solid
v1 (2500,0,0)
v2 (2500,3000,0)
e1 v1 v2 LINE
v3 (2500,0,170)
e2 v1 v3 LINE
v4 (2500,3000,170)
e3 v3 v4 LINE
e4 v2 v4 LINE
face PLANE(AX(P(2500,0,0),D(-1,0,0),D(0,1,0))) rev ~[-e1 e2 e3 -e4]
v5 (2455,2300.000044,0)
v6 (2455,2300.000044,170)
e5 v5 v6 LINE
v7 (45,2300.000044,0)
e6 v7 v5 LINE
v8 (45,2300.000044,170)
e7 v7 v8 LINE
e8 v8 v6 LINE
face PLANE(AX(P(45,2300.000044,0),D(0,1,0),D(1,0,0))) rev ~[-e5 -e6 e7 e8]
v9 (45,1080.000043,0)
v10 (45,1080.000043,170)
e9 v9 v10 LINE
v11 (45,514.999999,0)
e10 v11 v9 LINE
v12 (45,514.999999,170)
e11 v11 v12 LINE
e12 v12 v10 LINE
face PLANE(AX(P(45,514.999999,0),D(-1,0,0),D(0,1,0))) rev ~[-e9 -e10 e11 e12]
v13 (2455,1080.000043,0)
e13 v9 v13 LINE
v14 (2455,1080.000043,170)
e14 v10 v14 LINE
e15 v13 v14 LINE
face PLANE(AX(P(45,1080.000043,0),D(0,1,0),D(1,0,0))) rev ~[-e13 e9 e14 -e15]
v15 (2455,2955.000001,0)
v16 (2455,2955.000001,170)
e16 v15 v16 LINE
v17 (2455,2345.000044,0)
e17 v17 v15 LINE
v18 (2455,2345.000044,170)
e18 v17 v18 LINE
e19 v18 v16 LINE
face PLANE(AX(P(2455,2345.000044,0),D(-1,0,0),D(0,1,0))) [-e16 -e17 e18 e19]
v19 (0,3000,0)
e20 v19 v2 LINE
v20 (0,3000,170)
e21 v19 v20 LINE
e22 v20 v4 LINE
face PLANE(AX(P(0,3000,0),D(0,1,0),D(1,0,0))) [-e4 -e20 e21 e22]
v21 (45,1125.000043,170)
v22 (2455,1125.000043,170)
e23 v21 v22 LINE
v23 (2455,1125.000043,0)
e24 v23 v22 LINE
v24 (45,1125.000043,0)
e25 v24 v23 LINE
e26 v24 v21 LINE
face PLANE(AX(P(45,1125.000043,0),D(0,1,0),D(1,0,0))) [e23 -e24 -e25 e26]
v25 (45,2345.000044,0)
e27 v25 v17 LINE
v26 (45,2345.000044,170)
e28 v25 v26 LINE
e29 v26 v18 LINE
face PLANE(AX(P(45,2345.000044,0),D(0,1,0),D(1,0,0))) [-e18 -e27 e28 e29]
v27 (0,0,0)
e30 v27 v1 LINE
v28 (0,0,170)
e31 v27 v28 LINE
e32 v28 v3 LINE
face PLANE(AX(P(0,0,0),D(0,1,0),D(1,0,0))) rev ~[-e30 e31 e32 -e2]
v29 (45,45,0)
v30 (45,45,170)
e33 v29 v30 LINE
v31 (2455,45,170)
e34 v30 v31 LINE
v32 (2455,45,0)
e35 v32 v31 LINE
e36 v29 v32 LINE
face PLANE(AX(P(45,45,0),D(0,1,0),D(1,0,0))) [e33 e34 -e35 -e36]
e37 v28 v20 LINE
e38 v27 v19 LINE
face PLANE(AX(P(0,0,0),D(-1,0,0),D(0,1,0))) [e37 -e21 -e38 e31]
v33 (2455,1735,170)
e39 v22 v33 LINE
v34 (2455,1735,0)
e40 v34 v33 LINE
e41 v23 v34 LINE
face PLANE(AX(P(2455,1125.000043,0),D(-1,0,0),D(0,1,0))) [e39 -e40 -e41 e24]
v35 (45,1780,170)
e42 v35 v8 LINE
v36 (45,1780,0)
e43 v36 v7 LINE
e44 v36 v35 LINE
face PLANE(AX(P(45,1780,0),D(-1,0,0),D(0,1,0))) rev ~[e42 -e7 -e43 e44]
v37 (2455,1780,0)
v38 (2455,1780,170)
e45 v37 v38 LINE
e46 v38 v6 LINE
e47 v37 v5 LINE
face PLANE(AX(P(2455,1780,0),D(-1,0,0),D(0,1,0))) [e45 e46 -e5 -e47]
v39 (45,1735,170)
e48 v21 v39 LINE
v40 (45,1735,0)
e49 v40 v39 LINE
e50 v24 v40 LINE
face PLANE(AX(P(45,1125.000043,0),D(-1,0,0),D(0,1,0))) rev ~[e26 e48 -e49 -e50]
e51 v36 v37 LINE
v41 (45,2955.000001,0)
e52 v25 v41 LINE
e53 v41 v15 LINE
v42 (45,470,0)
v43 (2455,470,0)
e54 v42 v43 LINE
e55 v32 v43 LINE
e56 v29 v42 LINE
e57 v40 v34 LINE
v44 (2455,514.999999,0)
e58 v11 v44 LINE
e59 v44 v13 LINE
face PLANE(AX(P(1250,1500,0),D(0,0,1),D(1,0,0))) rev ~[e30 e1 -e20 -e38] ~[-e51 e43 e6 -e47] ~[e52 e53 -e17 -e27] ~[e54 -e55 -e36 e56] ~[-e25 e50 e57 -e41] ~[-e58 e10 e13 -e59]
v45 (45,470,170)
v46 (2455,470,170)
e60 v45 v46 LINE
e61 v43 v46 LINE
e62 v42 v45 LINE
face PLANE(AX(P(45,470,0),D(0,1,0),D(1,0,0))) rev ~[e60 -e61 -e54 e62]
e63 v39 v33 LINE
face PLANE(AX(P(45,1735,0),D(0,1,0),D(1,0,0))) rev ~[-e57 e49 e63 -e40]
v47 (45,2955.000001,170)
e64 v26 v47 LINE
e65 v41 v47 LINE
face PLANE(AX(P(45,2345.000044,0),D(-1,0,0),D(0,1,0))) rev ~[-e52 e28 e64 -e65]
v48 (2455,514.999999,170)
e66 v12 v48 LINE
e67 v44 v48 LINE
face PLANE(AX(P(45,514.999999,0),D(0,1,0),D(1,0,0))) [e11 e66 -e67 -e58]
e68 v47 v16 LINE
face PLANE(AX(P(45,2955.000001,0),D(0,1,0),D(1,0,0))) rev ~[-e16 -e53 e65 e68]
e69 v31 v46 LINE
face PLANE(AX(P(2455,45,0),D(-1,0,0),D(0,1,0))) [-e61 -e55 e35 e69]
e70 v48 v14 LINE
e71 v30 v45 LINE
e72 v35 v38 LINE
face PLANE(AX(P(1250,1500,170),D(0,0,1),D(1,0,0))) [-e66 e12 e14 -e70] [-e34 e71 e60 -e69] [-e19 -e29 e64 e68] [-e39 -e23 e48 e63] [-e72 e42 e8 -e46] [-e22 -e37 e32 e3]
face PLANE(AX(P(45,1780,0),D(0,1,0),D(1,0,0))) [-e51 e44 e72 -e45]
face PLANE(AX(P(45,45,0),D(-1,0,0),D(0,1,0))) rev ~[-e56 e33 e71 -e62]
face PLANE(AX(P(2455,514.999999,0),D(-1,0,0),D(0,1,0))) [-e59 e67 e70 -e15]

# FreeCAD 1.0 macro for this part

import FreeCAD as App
import Part
import Sketcher


def add_polygon(sketch, points):
    """Adds a closed chain of lines whose ends are joined by coincident constraints."""
    first, n = sketch.GeometryCount, len(points)
    for a, b in zip(points, points[1:] + points[:1]):
        sketch.addGeometry(Part.LineSegment(App.Vector(*a, 0), App.Vector(*b, 0)), False)
    for i in range(n):
        sketch.addConstraint(Sketcher.Constraint("Coincident", first + i, 2, first + (i + 1) % n, 1))

doc = App.newDocument("Part")
body = doc.addObject("PartDesign::Body", "Body")

sketch1 = doc.addObject("Sketcher::SketchObject", "Sketch")
body.addObject(sketch1)
sketch1.AttachmentSupport = (doc.XY_Plane, [""])
sketch1.MapMode = "FlatFace"
add_polygon(sketch1, [(0, 3000), (0, 0), (2500, 0), (2500, 3000)])
add_polygon(sketch1, [(2455, 45), (45, 45), (45, 470), (2455, 470)])
add_polygon(sketch1, [(2455, 514.999999), (45, 514.999999), (45, 1080.000043), (2455, 1080.000043)])
add_polygon(sketch1, [(2455, 1125.000043), (45, 1125.000043), (45, 1735), (2455, 1735)])
add_polygon(sketch1, [(2455, 1780), (45, 1780), (45, 2300.000044), (2455, 2300.000044)])
add_polygon(sketch1, [(2455, 2345.000044), (45, 2345.000044), (45, 2955.000001), (2455, 2955.000001)])
sketch1.addConstraint(Sketcher.Constraint("Vertical", 0))
sketch1.addConstraint(Sketcher.Constraint("Horizontal", 1))
sketch1.addConstraint(Sketcher.Constraint("Vertical", 2))
sketch1.addConstraint(Sketcher.Constraint("Horizontal", 3))
sketch1.addConstraint(Sketcher.Constraint("Horizontal", 4))
sketch1.addConstraint(Sketcher.Constraint("Vertical", 5))
sketch1.addConstraint(Sketcher.Constraint("Horizontal", 6))
sketch1.addConstraint(Sketcher.Constraint("Vertical", 7))
sketch1.addConstraint(Sketcher.Constraint("Horizontal", 8))
sketch1.addConstraint(Sketcher.Constraint("Vertical", 9))
sketch1.addConstraint(Sketcher.Constraint("Horizontal", 10))
sketch1.addConstraint(Sketcher.Constraint("Vertical", 11))
sketch1.addConstraint(Sketcher.Constraint("Horizontal", 12))
sketch1.addConstraint(Sketcher.Constraint("Vertical", 13))
sketch1.addConstraint(Sketcher.Constraint("Horizontal", 14))
sketch1.addConstraint(Sketcher.Constraint("Vertical", 15))
sketch1.addConstraint(Sketcher.Constraint("Horizontal", 16))
sketch1.addConstraint(Sketcher.Constraint("Vertical", 17))
sketch1.addConstraint(Sketcher.Constraint("Horizontal", 18))
sketch1.addConstraint(Sketcher.Constraint("Vertical", 19))
sketch1.addConstraint(Sketcher.Constraint("Horizontal", 20))
sketch1.addConstraint(Sketcher.Constraint("Vertical", 21))
sketch1.addConstraint(Sketcher.Constraint("Horizontal", 22))
sketch1.addConstraint(Sketcher.Constraint("Vertical", 23))
sketch1.addConstraint(Sketcher.Constraint("Coincident", 0, 2, -1, 1))
sketch1.addConstraint(Sketcher.Constraint("Vertical", 5, 2, 8, 2))
sketch1.addConstraint(Sketcher.Constraint("Vertical", 7, 2, 10, 2))
sketch1.addConstraint(Sketcher.Constraint("Vertical", 9, 2, 12, 2))
sketch1.addConstraint(Sketcher.Constraint("Vertical", 11, 2, 14, 2))
sketch1.addConstraint(Sketcher.Constraint("Vertical", 13, 2, 16, 2))
sketch1.addConstraint(Sketcher.Constraint("Vertical", 15, 2, 18, 2))
sketch1.addConstraint(Sketcher.Constraint("Vertical", 17, 2, 20, 2))
sketch1.addConstraint(Sketcher.Constraint("Vertical", 19, 2, 22, 2))
sketch1.addConstraint(Sketcher.Constraint("Equal", 15, 21))
sketch1.addConstraint(Sketcher.Constraint("DistanceX", 1, 1, 1, 2, 2500.0))
sketch1.addConstraint(Sketcher.Constraint("DistanceX", 4, 2, 4, 1, 2410.0))
sketch1.addConstraint(Sketcher.Constraint("DistanceY", 0, 2, 0, 1, 3000.0))
sketch1.addConstraint(Sketcher.Constraint("DistanceY", 5, 1, 5, 2, 424.999999))
sketch1.addConstraint(Sketcher.Constraint("DistanceX", -1, 1, 4, 2, 45.0))
sketch1.addConstraint(Sketcher.Constraint("DistanceY", -1, 1, 4, 2, 45.0))
sketch1.addConstraint(Sketcher.Constraint("DistanceY", -1, 1, 8, 2, 514.999999))
sketch1.addConstraint(Sketcher.Constraint("DistanceY", -1, 1, 13, 2, 1735.0))
sketch1.addConstraint(Sketcher.Constraint("DistanceY", -1, 1, 16, 2, 1780.0))
sketch1.addConstraint(Sketcher.Constraint("DistanceY", -1, 1, 21, 2, 2955.000001))
sketch1.addConstraint(Sketcher.Constraint("DistanceY", 9, 2, 12, 2, 45.0))
sketch1.addConstraint(Sketcher.Constraint("DistanceY", 12, 2, 17, 2, 1175.0))
sketch1.addConstraint(Sketcher.Constraint("DistanceY", 9, 1, 9, 2, 565.000044))
pad1 = doc.addObject("PartDesign::Pad", "Pad")
body.addObject(pad1)
pad1.Profile = sketch1
pad1.Length = 170

doc.recompute()
